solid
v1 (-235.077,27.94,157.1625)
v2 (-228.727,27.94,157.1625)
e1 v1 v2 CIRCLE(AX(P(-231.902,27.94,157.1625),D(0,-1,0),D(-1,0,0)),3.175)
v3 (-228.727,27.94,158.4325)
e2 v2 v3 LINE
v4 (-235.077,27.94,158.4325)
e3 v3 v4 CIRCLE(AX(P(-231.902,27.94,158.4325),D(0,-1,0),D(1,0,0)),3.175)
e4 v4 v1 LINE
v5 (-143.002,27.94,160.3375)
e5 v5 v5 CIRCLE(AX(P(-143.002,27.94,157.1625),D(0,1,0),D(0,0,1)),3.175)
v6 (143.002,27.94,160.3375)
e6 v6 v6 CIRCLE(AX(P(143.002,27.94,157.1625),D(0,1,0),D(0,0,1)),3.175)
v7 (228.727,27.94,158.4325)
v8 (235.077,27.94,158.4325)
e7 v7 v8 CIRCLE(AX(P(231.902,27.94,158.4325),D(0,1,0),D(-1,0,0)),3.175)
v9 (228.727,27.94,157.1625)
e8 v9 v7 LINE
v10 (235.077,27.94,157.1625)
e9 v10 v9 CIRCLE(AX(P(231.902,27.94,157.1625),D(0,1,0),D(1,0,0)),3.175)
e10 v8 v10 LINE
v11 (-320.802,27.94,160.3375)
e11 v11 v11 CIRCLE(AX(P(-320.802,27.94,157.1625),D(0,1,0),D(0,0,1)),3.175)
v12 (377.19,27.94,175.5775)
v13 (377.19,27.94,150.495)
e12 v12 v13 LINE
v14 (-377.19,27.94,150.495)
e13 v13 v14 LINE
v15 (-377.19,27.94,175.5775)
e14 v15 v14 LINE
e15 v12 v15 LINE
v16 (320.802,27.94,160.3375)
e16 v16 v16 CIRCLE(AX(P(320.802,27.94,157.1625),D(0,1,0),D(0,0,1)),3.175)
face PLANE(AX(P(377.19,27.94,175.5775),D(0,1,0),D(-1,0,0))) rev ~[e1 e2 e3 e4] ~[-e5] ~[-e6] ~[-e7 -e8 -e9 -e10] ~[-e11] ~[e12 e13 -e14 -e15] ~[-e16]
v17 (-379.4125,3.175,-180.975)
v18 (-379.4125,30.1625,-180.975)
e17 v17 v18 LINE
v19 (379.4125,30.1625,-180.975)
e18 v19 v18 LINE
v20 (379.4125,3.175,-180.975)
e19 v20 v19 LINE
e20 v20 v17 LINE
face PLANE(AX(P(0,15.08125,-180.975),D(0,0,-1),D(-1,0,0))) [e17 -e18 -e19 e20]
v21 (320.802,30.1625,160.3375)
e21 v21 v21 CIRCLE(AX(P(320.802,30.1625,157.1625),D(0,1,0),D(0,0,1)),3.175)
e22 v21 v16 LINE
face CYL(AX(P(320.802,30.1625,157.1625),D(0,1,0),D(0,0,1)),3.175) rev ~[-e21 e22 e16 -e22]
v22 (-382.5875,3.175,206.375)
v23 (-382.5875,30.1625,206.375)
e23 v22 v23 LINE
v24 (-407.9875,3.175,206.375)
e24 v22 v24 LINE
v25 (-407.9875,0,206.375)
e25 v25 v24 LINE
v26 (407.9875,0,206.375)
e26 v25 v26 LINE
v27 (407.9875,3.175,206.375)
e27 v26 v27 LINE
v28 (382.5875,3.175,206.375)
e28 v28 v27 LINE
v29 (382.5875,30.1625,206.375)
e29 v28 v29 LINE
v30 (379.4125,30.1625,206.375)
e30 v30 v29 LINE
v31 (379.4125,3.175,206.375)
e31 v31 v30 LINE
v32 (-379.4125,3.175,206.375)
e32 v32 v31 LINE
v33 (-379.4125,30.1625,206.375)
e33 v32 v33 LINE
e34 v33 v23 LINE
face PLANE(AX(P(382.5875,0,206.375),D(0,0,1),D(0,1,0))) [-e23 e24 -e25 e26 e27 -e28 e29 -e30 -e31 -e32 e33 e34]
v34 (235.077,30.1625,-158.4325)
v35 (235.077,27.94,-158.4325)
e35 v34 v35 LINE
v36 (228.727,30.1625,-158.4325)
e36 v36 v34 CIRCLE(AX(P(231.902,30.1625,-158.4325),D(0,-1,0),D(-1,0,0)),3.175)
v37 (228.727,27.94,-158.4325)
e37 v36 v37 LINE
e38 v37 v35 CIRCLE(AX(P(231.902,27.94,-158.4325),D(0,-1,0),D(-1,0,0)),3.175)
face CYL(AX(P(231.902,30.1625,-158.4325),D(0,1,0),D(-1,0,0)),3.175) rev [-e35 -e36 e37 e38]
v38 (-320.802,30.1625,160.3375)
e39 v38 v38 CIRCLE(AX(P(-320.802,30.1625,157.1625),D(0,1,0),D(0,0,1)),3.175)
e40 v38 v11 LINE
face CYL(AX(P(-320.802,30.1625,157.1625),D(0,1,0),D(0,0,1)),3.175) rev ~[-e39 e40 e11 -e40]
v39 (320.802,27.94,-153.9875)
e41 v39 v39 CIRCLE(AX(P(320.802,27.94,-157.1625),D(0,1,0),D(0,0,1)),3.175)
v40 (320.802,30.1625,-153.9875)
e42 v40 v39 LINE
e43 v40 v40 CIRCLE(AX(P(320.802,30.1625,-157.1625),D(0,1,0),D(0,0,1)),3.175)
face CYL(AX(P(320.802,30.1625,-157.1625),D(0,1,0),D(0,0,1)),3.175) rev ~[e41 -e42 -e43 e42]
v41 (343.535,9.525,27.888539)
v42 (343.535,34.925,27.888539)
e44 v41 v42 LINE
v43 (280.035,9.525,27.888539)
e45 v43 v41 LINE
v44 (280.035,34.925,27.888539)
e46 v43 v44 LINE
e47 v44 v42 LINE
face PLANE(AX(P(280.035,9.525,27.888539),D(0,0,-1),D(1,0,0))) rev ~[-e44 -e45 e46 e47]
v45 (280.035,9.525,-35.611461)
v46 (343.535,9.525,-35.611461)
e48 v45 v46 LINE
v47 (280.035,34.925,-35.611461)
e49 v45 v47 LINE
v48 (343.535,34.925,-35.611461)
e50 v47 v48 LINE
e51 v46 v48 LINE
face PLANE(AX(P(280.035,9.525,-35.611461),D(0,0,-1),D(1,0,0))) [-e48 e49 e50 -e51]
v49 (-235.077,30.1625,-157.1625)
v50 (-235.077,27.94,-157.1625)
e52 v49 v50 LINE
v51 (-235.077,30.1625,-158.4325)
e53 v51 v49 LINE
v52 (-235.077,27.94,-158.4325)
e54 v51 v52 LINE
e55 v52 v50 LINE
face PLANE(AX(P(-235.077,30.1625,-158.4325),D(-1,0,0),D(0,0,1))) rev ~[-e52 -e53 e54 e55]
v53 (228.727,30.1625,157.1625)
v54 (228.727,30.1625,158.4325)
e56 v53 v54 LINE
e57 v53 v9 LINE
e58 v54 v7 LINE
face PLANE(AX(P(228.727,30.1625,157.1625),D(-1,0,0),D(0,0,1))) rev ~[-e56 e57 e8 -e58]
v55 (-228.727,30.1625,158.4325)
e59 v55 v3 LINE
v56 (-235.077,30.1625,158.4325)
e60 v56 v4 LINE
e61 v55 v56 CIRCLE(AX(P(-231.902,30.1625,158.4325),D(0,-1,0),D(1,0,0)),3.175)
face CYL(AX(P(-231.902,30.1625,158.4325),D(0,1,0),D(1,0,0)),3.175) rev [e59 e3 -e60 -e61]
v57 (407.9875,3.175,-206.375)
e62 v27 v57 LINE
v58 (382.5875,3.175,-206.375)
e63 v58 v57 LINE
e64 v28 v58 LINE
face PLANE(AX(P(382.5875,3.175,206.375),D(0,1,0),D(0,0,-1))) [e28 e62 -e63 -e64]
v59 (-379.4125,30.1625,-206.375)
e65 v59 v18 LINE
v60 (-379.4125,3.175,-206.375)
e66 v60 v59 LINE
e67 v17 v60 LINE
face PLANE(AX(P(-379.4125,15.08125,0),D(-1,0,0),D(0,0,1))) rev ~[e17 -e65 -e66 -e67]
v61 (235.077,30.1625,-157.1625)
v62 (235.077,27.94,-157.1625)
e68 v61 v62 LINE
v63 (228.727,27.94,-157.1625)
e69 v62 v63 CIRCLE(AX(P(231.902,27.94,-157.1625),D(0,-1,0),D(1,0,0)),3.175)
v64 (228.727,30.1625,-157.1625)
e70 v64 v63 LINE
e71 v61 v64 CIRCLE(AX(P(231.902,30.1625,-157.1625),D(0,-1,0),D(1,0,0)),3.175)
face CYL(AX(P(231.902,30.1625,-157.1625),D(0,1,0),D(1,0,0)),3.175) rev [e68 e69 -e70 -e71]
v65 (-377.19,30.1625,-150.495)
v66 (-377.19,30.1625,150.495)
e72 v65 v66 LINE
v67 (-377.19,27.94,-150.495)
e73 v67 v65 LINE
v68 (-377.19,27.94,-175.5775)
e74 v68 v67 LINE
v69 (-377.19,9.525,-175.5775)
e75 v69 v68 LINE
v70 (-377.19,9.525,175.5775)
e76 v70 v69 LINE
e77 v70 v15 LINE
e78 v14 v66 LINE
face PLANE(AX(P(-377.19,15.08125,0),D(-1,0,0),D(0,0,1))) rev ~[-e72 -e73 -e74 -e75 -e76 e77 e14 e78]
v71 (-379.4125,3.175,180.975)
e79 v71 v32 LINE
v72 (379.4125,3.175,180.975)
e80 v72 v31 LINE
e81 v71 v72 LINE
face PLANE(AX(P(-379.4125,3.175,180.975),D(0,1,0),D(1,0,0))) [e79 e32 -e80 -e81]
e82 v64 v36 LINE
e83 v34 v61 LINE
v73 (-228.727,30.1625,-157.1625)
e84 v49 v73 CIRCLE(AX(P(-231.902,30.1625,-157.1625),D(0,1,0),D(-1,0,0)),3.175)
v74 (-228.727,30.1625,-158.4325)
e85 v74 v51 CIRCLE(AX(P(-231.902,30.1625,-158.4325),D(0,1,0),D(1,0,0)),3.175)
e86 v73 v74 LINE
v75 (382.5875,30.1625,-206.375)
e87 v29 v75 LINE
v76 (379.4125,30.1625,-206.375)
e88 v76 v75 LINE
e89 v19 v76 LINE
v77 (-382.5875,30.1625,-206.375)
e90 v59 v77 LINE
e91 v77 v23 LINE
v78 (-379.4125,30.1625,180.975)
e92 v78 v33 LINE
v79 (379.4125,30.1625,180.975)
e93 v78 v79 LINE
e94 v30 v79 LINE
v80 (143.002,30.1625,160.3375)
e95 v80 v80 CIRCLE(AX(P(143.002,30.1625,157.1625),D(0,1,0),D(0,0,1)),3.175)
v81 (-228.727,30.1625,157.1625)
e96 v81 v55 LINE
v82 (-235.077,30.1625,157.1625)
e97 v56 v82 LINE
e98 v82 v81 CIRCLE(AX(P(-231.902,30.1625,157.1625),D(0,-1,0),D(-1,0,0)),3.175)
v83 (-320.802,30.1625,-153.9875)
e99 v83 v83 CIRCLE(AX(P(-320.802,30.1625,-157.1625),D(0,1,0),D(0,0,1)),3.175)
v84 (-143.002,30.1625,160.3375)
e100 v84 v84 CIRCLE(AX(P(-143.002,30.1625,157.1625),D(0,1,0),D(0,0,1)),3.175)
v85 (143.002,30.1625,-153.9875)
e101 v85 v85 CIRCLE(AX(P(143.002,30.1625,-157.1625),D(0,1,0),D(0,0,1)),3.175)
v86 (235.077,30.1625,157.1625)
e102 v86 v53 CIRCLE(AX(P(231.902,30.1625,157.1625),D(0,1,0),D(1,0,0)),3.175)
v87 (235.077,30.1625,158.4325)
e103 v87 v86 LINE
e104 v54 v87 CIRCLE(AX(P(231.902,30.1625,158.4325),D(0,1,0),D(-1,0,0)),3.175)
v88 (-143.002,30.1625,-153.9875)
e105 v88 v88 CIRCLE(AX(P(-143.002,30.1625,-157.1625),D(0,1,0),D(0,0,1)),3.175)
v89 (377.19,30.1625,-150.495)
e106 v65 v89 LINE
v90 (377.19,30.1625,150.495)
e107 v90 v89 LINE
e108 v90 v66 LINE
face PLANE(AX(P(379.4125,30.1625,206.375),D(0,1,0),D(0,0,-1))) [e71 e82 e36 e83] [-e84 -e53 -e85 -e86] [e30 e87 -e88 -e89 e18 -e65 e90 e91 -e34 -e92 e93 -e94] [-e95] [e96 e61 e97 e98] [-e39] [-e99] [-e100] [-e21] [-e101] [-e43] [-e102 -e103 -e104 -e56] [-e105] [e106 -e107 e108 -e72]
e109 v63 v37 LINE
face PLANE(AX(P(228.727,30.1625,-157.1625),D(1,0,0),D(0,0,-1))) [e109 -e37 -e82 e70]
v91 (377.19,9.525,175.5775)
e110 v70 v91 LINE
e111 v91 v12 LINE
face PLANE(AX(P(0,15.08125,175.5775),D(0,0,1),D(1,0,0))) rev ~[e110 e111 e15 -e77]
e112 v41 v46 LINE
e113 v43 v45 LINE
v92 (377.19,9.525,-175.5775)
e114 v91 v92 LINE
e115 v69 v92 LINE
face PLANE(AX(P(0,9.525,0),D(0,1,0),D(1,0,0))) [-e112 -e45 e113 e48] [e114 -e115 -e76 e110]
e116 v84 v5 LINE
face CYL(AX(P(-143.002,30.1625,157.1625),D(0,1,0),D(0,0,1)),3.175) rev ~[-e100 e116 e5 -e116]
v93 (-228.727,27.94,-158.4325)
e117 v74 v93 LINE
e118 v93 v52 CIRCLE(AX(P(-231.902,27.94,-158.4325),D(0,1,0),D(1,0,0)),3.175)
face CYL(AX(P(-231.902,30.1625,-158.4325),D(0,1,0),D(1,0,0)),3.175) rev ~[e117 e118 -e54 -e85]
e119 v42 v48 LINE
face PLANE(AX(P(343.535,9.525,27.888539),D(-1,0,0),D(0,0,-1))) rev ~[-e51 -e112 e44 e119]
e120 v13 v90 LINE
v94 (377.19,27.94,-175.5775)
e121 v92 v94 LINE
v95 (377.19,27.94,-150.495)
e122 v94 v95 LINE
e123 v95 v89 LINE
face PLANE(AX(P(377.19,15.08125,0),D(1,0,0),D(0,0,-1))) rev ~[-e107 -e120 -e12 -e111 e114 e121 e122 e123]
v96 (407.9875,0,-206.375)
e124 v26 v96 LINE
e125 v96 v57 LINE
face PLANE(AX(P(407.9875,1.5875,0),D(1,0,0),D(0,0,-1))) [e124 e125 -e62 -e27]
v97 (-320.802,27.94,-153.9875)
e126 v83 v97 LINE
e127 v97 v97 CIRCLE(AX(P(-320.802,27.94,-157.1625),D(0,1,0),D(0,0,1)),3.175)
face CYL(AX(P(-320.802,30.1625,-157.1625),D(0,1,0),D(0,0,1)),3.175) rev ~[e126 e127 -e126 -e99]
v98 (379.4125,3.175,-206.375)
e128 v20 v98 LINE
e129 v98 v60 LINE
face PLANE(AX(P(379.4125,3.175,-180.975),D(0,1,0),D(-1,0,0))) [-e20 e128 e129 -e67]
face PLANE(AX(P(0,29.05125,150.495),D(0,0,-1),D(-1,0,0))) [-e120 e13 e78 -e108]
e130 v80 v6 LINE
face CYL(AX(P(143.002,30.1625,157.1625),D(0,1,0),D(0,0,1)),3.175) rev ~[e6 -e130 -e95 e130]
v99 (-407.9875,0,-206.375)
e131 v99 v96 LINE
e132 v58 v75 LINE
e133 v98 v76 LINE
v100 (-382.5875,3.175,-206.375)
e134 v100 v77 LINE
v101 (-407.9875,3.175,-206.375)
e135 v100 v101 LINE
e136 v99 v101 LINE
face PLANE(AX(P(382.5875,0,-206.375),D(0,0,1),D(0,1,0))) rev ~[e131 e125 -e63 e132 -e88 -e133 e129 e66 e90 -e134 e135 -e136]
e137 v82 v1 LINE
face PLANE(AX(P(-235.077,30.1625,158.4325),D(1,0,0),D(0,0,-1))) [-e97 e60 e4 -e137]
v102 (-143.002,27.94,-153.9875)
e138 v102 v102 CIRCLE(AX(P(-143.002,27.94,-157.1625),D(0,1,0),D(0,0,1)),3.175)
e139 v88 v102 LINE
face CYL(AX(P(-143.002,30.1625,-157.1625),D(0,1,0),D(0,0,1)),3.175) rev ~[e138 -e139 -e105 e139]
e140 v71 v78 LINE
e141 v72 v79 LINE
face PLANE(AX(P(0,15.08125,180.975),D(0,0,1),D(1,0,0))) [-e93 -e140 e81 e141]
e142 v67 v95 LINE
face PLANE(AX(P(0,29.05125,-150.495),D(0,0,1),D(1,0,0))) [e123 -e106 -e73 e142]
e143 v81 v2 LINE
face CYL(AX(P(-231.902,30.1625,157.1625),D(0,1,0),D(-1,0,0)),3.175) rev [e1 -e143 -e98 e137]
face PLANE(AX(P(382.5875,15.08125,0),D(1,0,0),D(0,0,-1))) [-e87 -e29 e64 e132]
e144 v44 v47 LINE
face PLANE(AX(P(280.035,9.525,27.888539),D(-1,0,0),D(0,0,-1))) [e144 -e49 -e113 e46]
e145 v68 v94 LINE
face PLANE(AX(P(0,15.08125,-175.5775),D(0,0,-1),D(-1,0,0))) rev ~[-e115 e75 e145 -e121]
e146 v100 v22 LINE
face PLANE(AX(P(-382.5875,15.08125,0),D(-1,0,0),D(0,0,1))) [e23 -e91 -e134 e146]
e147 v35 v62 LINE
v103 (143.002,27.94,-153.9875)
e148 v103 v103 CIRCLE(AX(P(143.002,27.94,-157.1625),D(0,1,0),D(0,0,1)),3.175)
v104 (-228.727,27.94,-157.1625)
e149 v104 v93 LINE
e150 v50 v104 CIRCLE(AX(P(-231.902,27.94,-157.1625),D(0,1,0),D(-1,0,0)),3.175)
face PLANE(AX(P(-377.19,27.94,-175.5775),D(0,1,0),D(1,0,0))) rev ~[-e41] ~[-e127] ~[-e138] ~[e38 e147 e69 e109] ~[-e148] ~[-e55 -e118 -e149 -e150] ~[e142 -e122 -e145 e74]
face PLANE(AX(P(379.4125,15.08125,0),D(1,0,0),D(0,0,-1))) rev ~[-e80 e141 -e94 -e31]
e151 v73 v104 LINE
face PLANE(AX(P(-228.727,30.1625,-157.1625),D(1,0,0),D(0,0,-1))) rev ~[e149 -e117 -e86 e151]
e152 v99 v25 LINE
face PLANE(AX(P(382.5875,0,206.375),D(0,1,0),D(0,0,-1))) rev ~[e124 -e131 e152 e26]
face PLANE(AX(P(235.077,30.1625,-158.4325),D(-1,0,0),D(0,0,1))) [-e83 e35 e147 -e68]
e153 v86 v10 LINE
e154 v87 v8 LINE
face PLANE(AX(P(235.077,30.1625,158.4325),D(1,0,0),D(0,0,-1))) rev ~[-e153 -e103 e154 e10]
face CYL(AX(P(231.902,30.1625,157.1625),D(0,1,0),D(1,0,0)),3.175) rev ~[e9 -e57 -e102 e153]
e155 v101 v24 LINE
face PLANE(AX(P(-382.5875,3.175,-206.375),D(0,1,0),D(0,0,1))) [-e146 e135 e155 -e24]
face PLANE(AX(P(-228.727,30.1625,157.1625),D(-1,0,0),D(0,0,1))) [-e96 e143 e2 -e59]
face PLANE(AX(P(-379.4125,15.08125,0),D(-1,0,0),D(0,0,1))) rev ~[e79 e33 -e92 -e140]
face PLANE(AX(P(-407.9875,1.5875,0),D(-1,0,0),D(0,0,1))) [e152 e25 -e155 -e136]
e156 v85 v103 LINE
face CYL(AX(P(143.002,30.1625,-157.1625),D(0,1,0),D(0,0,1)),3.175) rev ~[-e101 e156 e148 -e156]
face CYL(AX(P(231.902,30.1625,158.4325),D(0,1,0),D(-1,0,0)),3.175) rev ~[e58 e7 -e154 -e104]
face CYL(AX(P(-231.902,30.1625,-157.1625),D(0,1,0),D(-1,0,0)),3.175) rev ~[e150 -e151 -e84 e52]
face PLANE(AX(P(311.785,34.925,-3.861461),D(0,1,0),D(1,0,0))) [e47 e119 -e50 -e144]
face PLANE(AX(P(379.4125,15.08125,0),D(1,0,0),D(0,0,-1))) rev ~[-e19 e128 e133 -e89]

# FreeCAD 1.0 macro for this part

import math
import FreeCAD as App
import Part
import Sketcher
Q = App.Units.Quantity


def add_polygon(sketch, points):
    """Adds a closed chain of lines whose ends are joined by coincident constraints."""
    first, n = sketch.GeometryCount, len(points)
    for a, b in zip(points, points[1:] + points[:1]):
        sketch.addGeometry(Part.LineSegment(App.Vector(*a, 0), App.Vector(*b, 0)), False)
    for i in range(n):
        sketch.addConstraint(Sketcher.Constraint("Coincident", first + i, 2, first + (i + 1) % n, 1))

doc = App.newDocument("Part")
params = doc.addObject("Spreadsheet::Sheet", "Params")
for row, (alias, value) in enumerate([
    ("sketch1_width", "29.7 in"),
    ("sketch1_height", "13.825 in"),
    ("pad1_length", "0.375 in"),
    ("sketch2_height", "14 in"),
    ("sketch2_width", "1.1875 in"),
    ("pad2_length", "0.0875 in"),
    ("sketch3_width", "29.7 in"),
    ("sketch3_height", "1.1875 in"),
    ("pad3_length", "0.0875 in"),
    ("sketch4_width", "29.7 in"),
    ("sketch4_height", "1.1875 in"),
    ("pad4_length", "0.0875 in"),
    ("sketch5_height", "14 in"),
    ("sketch5_width", "1.1875 in"),
    ("pad5_length", "0.0875 in"),
    ("sketch6_width", "29.7 in"),
    ("pad6_length", "0.9875 in"),
    ("sketch7_width", "29.7 in"),
    ("pad7_length", "0.9875 in"),
    ("sketch8_radius", "0.125 in"),
    ("sketch8_height", "0.05 in"),
    ("pocket1_length", "0.0875 in"),
    ("sketch9_diameter", "0.25 in"),
    ("pocket2_length", "0.0875 in"),
    ("sketch10_width", "29.875 in"),
    ("sketch10_height", "1.1875 in"),
    ("pad8_length", "0.125 in"),
    ("sketch11_width", "29.875 in"),
    ("sketch11_height", "0.125 in"),
    ("pad9_length", "1 in"),
    ("sketch12_width", "29.875 in"),
    ("sketch12_height", "1.1875 in"),
    ("pad10_length", "0.125 in"),
    ("sketch13_width", "29.875 in"),
    ("sketch13_height", "0.125 in"),
    ("pad11_length", "1 in"),
    ("sketch14_height", "16.25 in"),
    ("sketch14_width", "1.1875 in"),
    ("pad12_length", "0.125 in"),
    ("sketch15_height", "16.25 in"),
    ("sketch15_width", "0.125 in"),
    ("pad13_length", "1 in"),
    ("sketch16_height", "16.25 in"),
    ("sketch16_width", "1.1875 in"),
    ("pad14_length", "0.125 in"),
    ("sketch17_height", "16.25 in"),
    ("sketch17_width", "0.125 in"),
    ("pad15_length", "1 in"),
    ("sketch18_width", "2.5 in"),
    ("pad16_length", "1 in"),
], start=1):
    params.set(f"A{row}", alias)
    params.set(f"B{row}", "=" + value)
    params.setAlias(f"B{row}", alias)

body = doc.addObject("PartDesign::Body", "Body")

# Sketch on XZ plane
sketch1 = body.newObject("Sketcher::SketchObject", "Sketch")
sketch1.AttachmentSupport = (doc.getObject("XZ_Plane"), [""])
sketch1.MapMode = "FlatFace"
add_polygon(sketch1, [(-377, -176), (-377, 176), (377, 176), (377, -176)])  # lines 0-3
sketch1.addConstraint([
    Sketcher.Constraint("Vertical", 0),
    Sketcher.Constraint("Horizontal", 1),
    Sketcher.Constraint("Vertical", 2),
    Sketcher.Constraint("Horizontal", 3),
    Sketcher.Constraint("Symmetric", 0, 2, 2, 2, -1, 1),
    Sketcher.Constraint("DistanceX", 1, 1, 1, 2, Q("29.7 in")),
    Sketcher.Constraint("DistanceY", 0, 1, 0, 2, Q("13.825 in")),
])
sketch1.setExpression("Constraints[9]", "Params.sketch1_width")
sketch1.setExpression("Constraints[10]", "Params.sketch1_height")
pad1 = body.newObject("PartDesign::Pad", "Pad")
pad1.Profile = sketch1
pad1.setExpression("Length", "Params.pad1_length")
pad1.Reversed = True

# Sketch on YZ plane
sketch2 = body.newObject("Sketcher::SketchObject", "Sketch001")
sketch2.AttachmentSupport = (doc.getObject("YZ_Plane"), [""])
sketch2.MapMode = "FlatFace"
sketch2.AttachmentOffset = App.Placement(App.Vector(0, 0, -14.85 * 25.4), App.Rotation())
add_polygon(sketch2, [(30, -178), (0, -178), (0, 178), (30, 178)])  # lines 0-3
sketch2.addConstraint([
    Sketcher.Constraint("Horizontal", 0),
    Sketcher.Constraint("Vertical", 1),
    Sketcher.Constraint("Horizontal", 2),
    Sketcher.Constraint("Vertical", 3),
    Sketcher.Constraint("Symmetric", 0, 2, 1, 2, -1, 1),
    Sketcher.Constraint("DistanceY", 1, 1, 1, 2, Q("14 in")),
    Sketcher.Constraint("DistanceX", 0, 2, 0, 1, Q("1.1875 in")),
])
sketch2.setExpression("Constraints[9]", "Params.sketch2_height")
sketch2.setExpression("Constraints[10]", "Params.sketch2_width")
pad2 = body.newObject("PartDesign::Pad", "Pad001")
pad2.Profile = sketch2
pad2.setExpression("Length", "Params.pad2_length")
pad2.Reversed = True

# Sketch on XY plane
sketch3 = body.newObject("Sketcher::SketchObject", "Sketch002")
sketch3.AttachmentSupport = (doc.getObject("XY_Plane"), [""])
sketch3.MapMode = "FlatFace"
sketch3.AttachmentOffset = App.Placement(App.Vector(0, 0, 6.9125 * 25.4), App.Rotation())
add_polygon(sketch3, [(-377, 30), (-377, 0), (377, 0), (377, 30)])  # lines 0-3
sketch3.addConstraint([
    Sketcher.Constraint("Vertical", 0),
    Sketcher.Constraint("Horizontal", 1),
    Sketcher.Constraint("Vertical", 2),
    Sketcher.Constraint("Horizontal", 3),
    Sketcher.Constraint("Symmetric", 0, 2, 1, 2, -1, 1),
    Sketcher.Constraint("DistanceX", 1, 1, 1, 2, Q("29.7 in")),
    Sketcher.Constraint("DistanceY", 0, 2, 0, 1, Q("1.1875 in")),
])
sketch3.setExpression("Constraints[9]", "Params.sketch3_width")
sketch3.setExpression("Constraints[10]", "Params.sketch3_height")
pad3 = body.newObject("PartDesign::Pad", "Pad002")
pad3.Profile = sketch3
pad3.setExpression("Length", "Params.pad3_length")

# Sketch on XY plane
sketch4 = body.newObject("Sketcher::SketchObject", "Sketch003")
sketch4.AttachmentSupport = (doc.getObject("XY_Plane"), [""])
sketch4.MapMode = "FlatFace"
sketch4.AttachmentOffset = App.Placement(App.Vector(0, 0, -6.9125 * 25.4), App.Rotation())
add_polygon(sketch4, [(377, 30), (377, 0), (-377, 0), (-377, 30)])  # lines 0-3
sketch4.addConstraint([
    Sketcher.Constraint("Vertical", 0),
    Sketcher.Constraint("Horizontal", 1),
    Sketcher.Constraint("Vertical", 2),
    Sketcher.Constraint("Horizontal", 3),
    Sketcher.Constraint("Symmetric", 0, 2, 1, 2, -1, 1),
    Sketcher.Constraint("DistanceX", 1, 2, 1, 1, Q("29.7 in")),
    Sketcher.Constraint("DistanceY", 0, 2, 0, 1, Q("1.1875 in")),
])
sketch4.setExpression("Constraints[9]", "Params.sketch4_width")
sketch4.setExpression("Constraints[10]", "Params.sketch4_height")
pad4 = body.newObject("PartDesign::Pad", "Pad003")
pad4.Profile = sketch4
pad4.setExpression("Length", "Params.pad4_length")
pad4.Reversed = True

# Sketch on YZ plane
sketch5 = body.newObject("Sketcher::SketchObject", "Sketch004")
sketch5.AttachmentSupport = (doc.getObject("YZ_Plane"), [""])
sketch5.MapMode = "FlatFace"
sketch5.AttachmentOffset = App.Placement(App.Vector(0, 0, 14.85 * 25.4), App.Rotation())
add_polygon(sketch5, [(30, 178), (0, 178), (0, -178), (30, -178)])  # lines 0-3
sketch5.addConstraint([
    Sketcher.Constraint("Horizontal", 0),
    Sketcher.Constraint("Vertical", 1),
    Sketcher.Constraint("Horizontal", 2),
    Sketcher.Constraint("Vertical", 3),
    Sketcher.Constraint("Symmetric", 0, 2, 1, 2, -1, 1),
    Sketcher.Constraint("DistanceY", 1, 2, 1, 1, Q("14 in")),
    Sketcher.Constraint("DistanceX", 0, 2, 0, 1, Q("1.1875 in")),
])
sketch5.setExpression("Constraints[9]", "Params.sketch5_height")
sketch5.setExpression("Constraints[10]", "Params.sketch5_width")
pad5 = body.newObject("PartDesign::Pad", "Pad004")
pad5.Profile = sketch5
pad5.setExpression("Length", "Params.pad5_length")

# Sketch on XY plane
sketch6 = body.newObject("Sketcher::SketchObject", "Sketch005")
sketch6.AttachmentSupport = (doc.getObject("XY_Plane"), [""])
sketch6.MapMode = "FlatFace"
sketch6.AttachmentOffset = App.Placement(App.Vector(0, 0, -6.9125 * 25.4), App.Rotation())
add_polygon(sketch6, [(-377.2, 30.2), (-377.2, 27.9), (377.2, 27.9), (377.2, 30.2)])  # lines 0-3
sketch6.addConstraint([
    Sketcher.Constraint("Vertical", 0),
    Sketcher.Constraint("Horizontal", 1),
    Sketcher.Constraint("Vertical", 2),
    Sketcher.Constraint("Horizontal", 3),
    Sketcher.Constraint("DistanceX", 1, 1, 1, 2, Q("29.7 in")),
    Sketcher.Constraint("DistanceY", -1, 1, 0, 2, Q("1.1 in")),
    Sketcher.Constraint("DistanceX", 0, 2, -1, 1, Q("14.85 in")),
    Sketcher.Constraint("DistanceY", 0, 2, 0, 1, Q("0.0875 in")),
])
sketch6.setExpression("Constraints[8]", "Params.sketch6_width")
pad6 = body.newObject("PartDesign::Pad", "Pad005")
pad6.Profile = sketch6
pad6.setExpression("Length", "Params.pad6_length")

# Sketch on XY plane
sketch7 = body.newObject("Sketcher::SketchObject", "Sketch006")
sketch7.AttachmentSupport = (doc.getObject("XY_Plane"), [""])
sketch7.MapMode = "FlatFace"
sketch7.AttachmentOffset = App.Placement(App.Vector(0, 0, 6.9125 * 25.4), App.Rotation())
add_polygon(sketch7, [(377.2, 30.2), (377.2, 27.9), (-377.2, 27.9), (-377.2, 30.2)])  # lines 0-3
sketch7.addConstraint([
    Sketcher.Constraint("Vertical", 0),
    Sketcher.Constraint("Horizontal", 1),
    Sketcher.Constraint("Vertical", 2),
    Sketcher.Constraint("Horizontal", 3),
    Sketcher.Constraint("DistanceX", 1, 2, 1, 1, Q("29.7 in")),
    Sketcher.Constraint("DistanceY", -1, 1, 0, 2, Q("1.1 in")),
    Sketcher.Constraint("DistanceX", -1, 1, 0, 2, Q("14.85 in")),
    Sketcher.Constraint("DistanceY", 0, 2, 0, 1, Q("0.0875 in")),
])
sketch7.setExpression("Constraints[8]", "Params.sketch7_width")
pad7 = body.newObject("PartDesign::Pad", "Pad006")
pad7.Profile = sketch7
pad7.setExpression("Length", "Params.pad7_length")
pad7.Reversed = True

# Sketch on XZ plane
sketch8 = body.newObject("Sketcher::SketchObject", "Sketch007")
sketch8.AttachmentSupport = (doc.getObject("XZ_Plane"), [""])
sketch8.MapMode = "FlatFace"
sketch8.AttachmentOffset = App.Placement(App.Vector(0, 0, -1.1875 * 25.4), App.Rotation())
sketch8.addGeometry([
    Part.LineSegment(App.Vector(-228.7, -157.2, 0), App.Vector(-228.7, -158.4, 0)),  # 0
    Part.ArcOfCircle(Part.Circle(App.Vector(-231.9, -158.4, 0), App.Vector(0, 0, 1), 3.2), math.radians(180), math.radians(360)),  # 1
    Part.LineSegment(App.Vector(-235.1, -158.4, 0), App.Vector(-235.1, -157.2, 0)),  # 2
    Part.ArcOfCircle(Part.Circle(App.Vector(-231.9, -157.2, 0), App.Vector(0, 0, 1), 3.2), math.radians(0), math.radians(180)),  # 3
    Part.LineSegment(App.Vector(-235.1, 157.2, 0), App.Vector(-235.1, 158.4, 0)),  # 4
    Part.ArcOfCircle(Part.Circle(App.Vector(-231.9, 158.4, 0), App.Vector(0, 0, 1), 3.2), math.radians(0), math.radians(180)),  # 5
    Part.LineSegment(App.Vector(-228.7, 158.4, 0), App.Vector(-228.7, 157.2, 0)),  # 6
    Part.ArcOfCircle(Part.Circle(App.Vector(-231.9, 157.2, 0), App.Vector(0, 0, 1), 3.2), math.radians(180), math.radians(360)),  # 7
    Part.LineSegment(App.Vector(228.7, 157.2, 0), App.Vector(228.7, 158.4, 0)),  # 8
    Part.ArcOfCircle(Part.Circle(App.Vector(231.9, 158.4, 0), App.Vector(0, 0, 1), 3.2), math.radians(0), math.radians(180)),  # 9
    Part.LineSegment(App.Vector(235.1, 158.4, 0), App.Vector(235.1, 157.2, 0)),  # 10
    Part.ArcOfCircle(Part.Circle(App.Vector(231.9, 157.2, 0), App.Vector(0, 0, 1), 3.2), math.radians(180), math.radians(360)),  # 11
    Part.LineSegment(App.Vector(228.7, -158.4, 0), App.Vector(228.7, -157.2, 0)),  # 12
    Part.ArcOfCircle(Part.Circle(App.Vector(231.9, -157.2, 0), App.Vector(0, 0, 1), 3.2), math.radians(0), math.radians(180)),  # 13
    Part.LineSegment(App.Vector(235.1, -157.2, 0), App.Vector(235.1, -158.4, 0)),  # 14
    Part.ArcOfCircle(Part.Circle(App.Vector(231.9, -158.4, 0), App.Vector(0, 0, 1), 3.2), math.radians(180), math.radians(360)),  # 15
], False)
sketch8.addConstraint([
    Sketcher.Constraint("Tangent", 0, 2, 1, 2),
    Sketcher.Constraint("Tangent", 1, 1, 2, 1),
    Sketcher.Constraint("Tangent", 2, 2, 3, 2),
    Sketcher.Constraint("Tangent", 3, 1, 0, 1),
    Sketcher.Constraint("Tangent", 4, 2, 5, 2),
    Sketcher.Constraint("Tangent", 5, 1, 6, 1),
    Sketcher.Constraint("Tangent", 6, 2, 7, 2),
    Sketcher.Constraint("Tangent", 7, 1, 4, 1),
    Sketcher.Constraint("Tangent", 8, 2, 9, 2),
    Sketcher.Constraint("Tangent", 9, 1, 10, 1),
    Sketcher.Constraint("Tangent", 10, 2, 11, 2),
    Sketcher.Constraint("Tangent", 11, 1, 8, 1),
    Sketcher.Constraint("Tangent", 12, 2, 13, 2),
    Sketcher.Constraint("Tangent", 13, 1, 14, 1),
    Sketcher.Constraint("Tangent", 14, 2, 15, 2),
    Sketcher.Constraint("Tangent", 15, 1, 12, 1),
    Sketcher.Constraint("Vertical", 0),
    Sketcher.Constraint("Vertical", 2),
    Sketcher.Constraint("Vertical", 4),
    Sketcher.Constraint("Vertical", 6),
    Sketcher.Constraint("Vertical", 8),
    Sketcher.Constraint("Vertical", 10),
    Sketcher.Constraint("Vertical", 12),
    Sketcher.Constraint("Vertical", 14),
    Sketcher.Constraint("Equal", 3, 5),
    Sketcher.Constraint("Equal", 7, 9),
    Sketcher.Constraint("Equal", 11, 13),
    Sketcher.Constraint("Symmetric", 1, 3, 9, 3, -1, 1),
    Sketcher.Constraint("Symmetric", 7, 3, 13, 3, -1, 1),
    Sketcher.Constraint("Symmetric", 5, 3, 9, 3, -2),
    Sketcher.Constraint("Horizontal", 7, 3, 11, 3),
    Sketcher.Constraint("Horizontal", 3, 3, 13, 3),
    Sketcher.Constraint("Horizontal", 1, 3, 15, 3),
    Sketcher.Constraint("Radius", 1, Q("0.125 in")),
    Sketcher.Constraint("DistanceY", 0, 2, 0, 1, Q("0.05 in")),
    Sketcher.Constraint("DistanceX", 1, 3, -1, 1, Q("9.13 in")),
    Sketcher.Constraint("DistanceY", 3, 3, -1, 1, Q("6.1875 in")),
])
sketch8.setExpression("Constraints[33]", "Params.sketch8_radius")
sketch8.setExpression("Constraints[34]", "Params.sketch8_height")
pocket1 = body.newObject("PartDesign::Pocket", "Pocket")
pocket1.Profile = sketch8
pocket1.setExpression("Length", "Params.pocket1_length")
pocket1.Reversed = True

# Sketch on XZ plane
sketch9 = body.newObject("Sketcher::SketchObject", "Sketch008")
sketch9.AttachmentSupport = (doc.getObject("XZ_Plane"), [""])
sketch9.MapMode = "FlatFace"
sketch9.AttachmentOffset = App.Placement(App.Vector(0, 0, -1.1875 * 25.4), App.Rotation())
sketch9.addGeometry([
    Part.Circle(App.Vector(-143, 157.2, 0), App.Vector(0, 0, 1), 3.2),  # 0
    Part.Circle(App.Vector(-143, -157.2, 0), App.Vector(0, 0, 1), 3.2),  # 1
    Part.Circle(App.Vector(-320.8, 157.2, 0), App.Vector(0, 0, 1), 3.2),  # 2
    Part.Circle(App.Vector(-320.8, -157.2, 0), App.Vector(0, 0, 1), 3.2),  # 3
    Part.Circle(App.Vector(143, -157.2, 0), App.Vector(0, 0, 1), 3.2),  # 4
    Part.Circle(App.Vector(320.8, -157.2, 0), App.Vector(0, 0, 1), 3.2),  # 5
    Part.Circle(App.Vector(143, 157.2, 0), App.Vector(0, 0, 1), 3.2),  # 6
    Part.Circle(App.Vector(320.8, 157.2, 0), App.Vector(0, 0, 1), 3.2),  # 7
], False)
sketch9.addConstraint([
    Sketcher.Constraint("Equal", 0, 1),
    Sketcher.Constraint("Equal", 1, 2),
    Sketcher.Constraint("Equal", 2, 3),
    Sketcher.Constraint("Equal", 3, 4),
    Sketcher.Constraint("Equal", 4, 5),
    Sketcher.Constraint("Equal", 5, 6),
    Sketcher.Constraint("Equal", 6, 7),
    Sketcher.Constraint("Symmetric", 0, 3, 4, 3, -1, 1),
    Sketcher.Constraint("Symmetric", 2, 3, 5, 3, -1, 1),
    Sketcher.Constraint("Symmetric", 1, 3, 6, 3, -1, 1),
    Sketcher.Constraint("Symmetric", 3, 3, 7, 3, -1, 1),
    Sketcher.Constraint("Symmetric", 1, 3, 4, 3, -2),
    Sketcher.Constraint("Symmetric", 3, 3, 5, 3, -2),
    Sketcher.Constraint("Horizontal", 0, 3, 2, 3),
    Sketcher.Constraint("Diameter", 0, Q("0.25 in")),
    Sketcher.Constraint("DistanceX", 2, 3, 0, 3, Q("7 in")),
    Sketcher.Constraint("DistanceX", 0, 3, -1, 1, Q("5.63 in")),
    Sketcher.Constraint("DistanceY", -1, 1, 0, 3, Q("6.1875 in")),
])
sketch9.setExpression("Constraints[14]", "Params.sketch9_diameter")
pocket2 = body.newObject("PartDesign::Pocket", "Pocket001")
pocket2.Profile = sketch9
pocket2.setExpression("Length", "Params.pocket2_length")
pocket2.Reversed = True

# Sketch on XY plane
sketch10 = body.newObject("Sketcher::SketchObject", "Sketch009")
sketch10.AttachmentSupport = (doc.getObject("XY_Plane"), [""])
sketch10.MapMode = "FlatFace"
sketch10.AttachmentOffset = App.Placement(App.Vector(0, 0, 7 * 25.4), App.Rotation())
add_polygon(sketch10, [(-379, 30), (-379, 0), (379, 0), (379, 30)])  # lines 0-3
sketch10.addConstraint([
    Sketcher.Constraint("Vertical", 0),
    Sketcher.Constraint("Horizontal", 1),
    Sketcher.Constraint("Vertical", 2),
    Sketcher.Constraint("Horizontal", 3),
    Sketcher.Constraint("Symmetric", 0, 2, 1, 2, -1, 1),
    Sketcher.Constraint("DistanceX", 1, 1, 1, 2, Q("29.875 in")),
    Sketcher.Constraint("DistanceY", 0, 2, 0, 1, Q("1.1875 in")),
])
sketch10.setExpression("Constraints[9]", "Params.sketch10_width")
sketch10.setExpression("Constraints[10]", "Params.sketch10_height")
pad8 = body.newObject("PartDesign::Pad", "Pad007")
pad8.Profile = sketch10
pad8.setExpression("Length", "Params.pad8_length")

# Sketch on XY plane
sketch11 = body.newObject("Sketcher::SketchObject", "Sketch010")
sketch11.AttachmentSupport = (doc.getObject("XY_Plane"), [""])
sketch11.MapMode = "FlatFace"
sketch11.AttachmentOffset = App.Placement(App.Vector(0, 0, 7.125 * 25.4), App.Rotation())
add_polygon(sketch11, [(-379.4, 3.2), (-379.4, 0), (379.4, 0), (379.4, 3.2)])  # lines 0-3
sketch11.addConstraint([
    Sketcher.Constraint("Vertical", 0),
    Sketcher.Constraint("Horizontal", 1),
    Sketcher.Constraint("Vertical", 2),
    Sketcher.Constraint("Horizontal", 3),
    Sketcher.Constraint("Symmetric", 0, 2, 1, 2, -1, 1),
    Sketcher.Constraint("DistanceX", 1, 1, 1, 2, Q("29.875 in")),
    Sketcher.Constraint("DistanceY", 0, 2, 0, 1, Q("0.125 in")),
])
sketch11.setExpression("Constraints[9]", "Params.sketch11_width")
sketch11.setExpression("Constraints[10]", "Params.sketch11_height")
pad9 = body.newObject("PartDesign::Pad", "Pad008")
pad9.Profile = sketch11
pad9.setExpression("Length", "Params.pad9_length")

# Sketch on XY plane
sketch12 = body.newObject("Sketcher::SketchObject", "Sketch011")
sketch12.AttachmentSupport = (doc.getObject("XY_Plane"), [""])
sketch12.MapMode = "FlatFace"
sketch12.AttachmentOffset = App.Placement(App.Vector(0, 0, -7 * 25.4), App.Rotation())
add_polygon(sketch12, [(379, 30), (379, 0), (-379, 0), (-379, 30)])  # lines 0-3
sketch12.addConstraint([
    Sketcher.Constraint("Vertical", 0),
    Sketcher.Constraint("Horizontal", 1),
    Sketcher.Constraint("Vertical", 2),
    Sketcher.Constraint("Horizontal", 3),
    Sketcher.Constraint("Symmetric", 0, 2, 1, 2, -1, 1),
    Sketcher.Constraint("DistanceX", 1, 2, 1, 1, Q("29.875 in")),
    Sketcher.Constraint("DistanceY", 0, 2, 0, 1, Q("1.1875 in")),
])
sketch12.setExpression("Constraints[9]", "Params.sketch12_width")
sketch12.setExpression("Constraints[10]", "Params.sketch12_height")
pad10 = body.newObject("PartDesign::Pad", "Pad009")
pad10.Profile = sketch12
pad10.setExpression("Length", "Params.pad10_length")
pad10.Reversed = True

# Sketch on XY plane
sketch13 = body.newObject("Sketcher::SketchObject", "Sketch012")
sketch13.AttachmentSupport = (doc.getObject("XY_Plane"), [""])
sketch13.MapMode = "FlatFace"
sketch13.AttachmentOffset = App.Placement(App.Vector(0, 0, -7.125 * 25.4), App.Rotation())
add_polygon(sketch13, [(379.4, 3.2), (379.4, 0), (-379.4, 0), (-379.4, 3.2)])  # lines 0-3
sketch13.addConstraint([
    Sketcher.Constraint("Vertical", 0),
    Sketcher.Constraint("Horizontal", 1),
    Sketcher.Constraint("Vertical", 2),
    Sketcher.Constraint("Horizontal", 3),
    Sketcher.Constraint("Symmetric", 0, 2, 1, 2, -1, 1),
    Sketcher.Constraint("DistanceX", 1, 2, 1, 1, Q("29.875 in")),
    Sketcher.Constraint("DistanceY", 0, 2, 0, 1, Q("0.125 in")),
])
sketch13.setExpression("Constraints[9]", "Params.sketch13_width")
sketch13.setExpression("Constraints[10]", "Params.sketch13_height")
pad11 = body.newObject("PartDesign::Pad", "Pad010")
pad11.Profile = sketch13
pad11.setExpression("Length", "Params.pad11_length")
pad11.Reversed = True

# Sketch on YZ plane
sketch14 = body.newObject("Sketcher::SketchObject", "Sketch013")
sketch14.AttachmentSupport = (doc.getObject("YZ_Plane"), [""])
sketch14.MapMode = "FlatFace"
sketch14.AttachmentOffset = App.Placement(App.Vector(0, 0, -14.9375 * 25.4), App.Rotation())
add_polygon(sketch14, [(30, -206), (0, -206), (0, 206), (30, 206)])  # lines 0-3
sketch14.addConstraint([
    Sketcher.Constraint("Horizontal", 0),
    Sketcher.Constraint("Vertical", 1),
    Sketcher.Constraint("Horizontal", 2),
    Sketcher.Constraint("Vertical", 3),
    Sketcher.Constraint("Symmetric", 0, 2, 1, 2, -1, 1),
    Sketcher.Constraint("DistanceY", 1, 1, 1, 2, Q("16.25 in")),
    Sketcher.Constraint("DistanceX", 0, 2, 0, 1, Q("1.1875 in")),
])
sketch14.setExpression("Constraints[9]", "Params.sketch14_height")
sketch14.setExpression("Constraints[10]", "Params.sketch14_width")
pad12 = body.newObject("PartDesign::Pad", "Pad011")
pad12.Profile = sketch14
pad12.setExpression("Length", "Params.pad12_length")
pad12.Reversed = True

# Sketch on YZ plane
sketch15 = body.newObject("Sketcher::SketchObject", "Sketch014")
sketch15.AttachmentSupport = (doc.getObject("YZ_Plane"), [""])
sketch15.MapMode = "FlatFace"
sketch15.AttachmentOffset = App.Placement(App.Vector(0, 0, -15.0625 * 25.4), App.Rotation())
add_polygon(sketch15, [(3.2, -206.4), (0, -206.4), (0, 206.4), (3.2, 206.4)])  # lines 0-3
sketch15.addConstraint([
    Sketcher.Constraint("Horizontal", 0),
    Sketcher.Constraint("Vertical", 1),
    Sketcher.Constraint("Horizontal", 2),
    Sketcher.Constraint("Vertical", 3),
    Sketcher.Constraint("Symmetric", 0, 2, 1, 2, -1, 1),
    Sketcher.Constraint("DistanceY", 1, 1, 1, 2, Q("16.25 in")),
    Sketcher.Constraint("DistanceX", 0, 2, 0, 1, Q("0.125 in")),
])
sketch15.setExpression("Constraints[9]", "Params.sketch15_height")
sketch15.setExpression("Constraints[10]", "Params.sketch15_width")
pad13 = body.newObject("PartDesign::Pad", "Pad012")
pad13.Profile = sketch15
pad13.setExpression("Length", "Params.pad13_length")
pad13.Reversed = True

# Sketch on YZ plane
sketch16 = body.newObject("Sketcher::SketchObject", "Sketch015")
sketch16.AttachmentSupport = (doc.getObject("YZ_Plane"), [""])
sketch16.MapMode = "FlatFace"
sketch16.AttachmentOffset = App.Placement(App.Vector(0, 0, 14.9375 * 25.4), App.Rotation())
add_polygon(sketch16, [(30, 206), (0, 206), (0, -206), (30, -206)])  # lines 0-3
sketch16.addConstraint([
    Sketcher.Constraint("Horizontal", 0),
    Sketcher.Constraint("Vertical", 1),
    Sketcher.Constraint("Horizontal", 2),
    Sketcher.Constraint("Vertical", 3),
    Sketcher.Constraint("Symmetric", 0, 2, 1, 2, -1, 1),
    Sketcher.Constraint("DistanceY", 1, 2, 1, 1, Q("16.25 in")),
    Sketcher.Constraint("DistanceX", 0, 2, 0, 1, Q("1.1875 in")),
])
sketch16.setExpression("Constraints[9]", "Params.sketch16_height")
sketch16.setExpression("Constraints[10]", "Params.sketch16_width")
pad14 = body.newObject("PartDesign::Pad", "Pad013")
pad14.Profile = sketch16
pad14.setExpression("Length", "Params.pad14_length")

# Sketch on YZ plane
sketch17 = body.newObject("Sketcher::SketchObject", "Sketch016")
sketch17.AttachmentSupport = (doc.getObject("YZ_Plane"), [""])
sketch17.MapMode = "FlatFace"
sketch17.AttachmentOffset = App.Placement(App.Vector(0, 0, 15.0625 * 25.4), App.Rotation())
add_polygon(sketch17, [(3.2, 206.4), (0, 206.4), (0, -206.4), (3.2, -206.4)])  # lines 0-3
sketch17.addConstraint([
    Sketcher.Constraint("Horizontal", 0),
    Sketcher.Constraint("Vertical", 1),
    Sketcher.Constraint("Horizontal", 2),
    Sketcher.Constraint("Vertical", 3),
    Sketcher.Constraint("Symmetric", 0, 2, 1, 2, -1, 1),
    Sketcher.Constraint("DistanceY", 1, 2, 1, 1, Q("16.25 in")),
    Sketcher.Constraint("DistanceX", 0, 2, 0, 1, Q("0.125 in")),
])
sketch17.setExpression("Constraints[9]", "Params.sketch17_height")
sketch17.setExpression("Constraints[10]", "Params.sketch17_width")
pad15 = body.newObject("PartDesign::Pad", "Pad014")
pad15.Profile = sketch17
pad15.setExpression("Length", "Params.pad15_length")

# Sketch on XZ plane
sketch18 = body.newObject("Sketcher::SketchObject", "Sketch017")
sketch18.AttachmentSupport = (doc.getObject("XZ_Plane"), [""])
sketch18.MapMode = "FlatFace"
sketch18.AttachmentOffset = App.Placement(App.Vector(0, 0, -0.375 * 25.4), App.Rotation())
add_polygon(sketch18, [(280, -36), (280, 28), (344, 28), (344, -36)])  # lines 0-3
sketch18.addConstraint([
    Sketcher.Constraint("Vertical", 0),
    Sketcher.Constraint("Horizontal", 1),
    Sketcher.Constraint("Vertical", 2),
    Sketcher.Constraint("Horizontal", 3),
    Sketcher.Constraint("Equal", 3, 0),
    Sketcher.Constraint("DistanceX", 1, 1, 1, 2, Q("2.5 in")),
    Sketcher.Constraint("DistanceX", -1, 1, 0, 2, Q("11.025 in")),
    Sketcher.Constraint("DistanceY", -1, 1, 0, 2, Q("27.888539 mm")),
])
sketch18.setExpression("Constraints[9]", "Params.sketch18_width")
pad16 = body.newObject("PartDesign::Pad", "Pad015")
pad16.Profile = sketch18
pad16.setExpression("Length", "Params.pad16_length")
pad16.Reversed = True

doc.recompute()
